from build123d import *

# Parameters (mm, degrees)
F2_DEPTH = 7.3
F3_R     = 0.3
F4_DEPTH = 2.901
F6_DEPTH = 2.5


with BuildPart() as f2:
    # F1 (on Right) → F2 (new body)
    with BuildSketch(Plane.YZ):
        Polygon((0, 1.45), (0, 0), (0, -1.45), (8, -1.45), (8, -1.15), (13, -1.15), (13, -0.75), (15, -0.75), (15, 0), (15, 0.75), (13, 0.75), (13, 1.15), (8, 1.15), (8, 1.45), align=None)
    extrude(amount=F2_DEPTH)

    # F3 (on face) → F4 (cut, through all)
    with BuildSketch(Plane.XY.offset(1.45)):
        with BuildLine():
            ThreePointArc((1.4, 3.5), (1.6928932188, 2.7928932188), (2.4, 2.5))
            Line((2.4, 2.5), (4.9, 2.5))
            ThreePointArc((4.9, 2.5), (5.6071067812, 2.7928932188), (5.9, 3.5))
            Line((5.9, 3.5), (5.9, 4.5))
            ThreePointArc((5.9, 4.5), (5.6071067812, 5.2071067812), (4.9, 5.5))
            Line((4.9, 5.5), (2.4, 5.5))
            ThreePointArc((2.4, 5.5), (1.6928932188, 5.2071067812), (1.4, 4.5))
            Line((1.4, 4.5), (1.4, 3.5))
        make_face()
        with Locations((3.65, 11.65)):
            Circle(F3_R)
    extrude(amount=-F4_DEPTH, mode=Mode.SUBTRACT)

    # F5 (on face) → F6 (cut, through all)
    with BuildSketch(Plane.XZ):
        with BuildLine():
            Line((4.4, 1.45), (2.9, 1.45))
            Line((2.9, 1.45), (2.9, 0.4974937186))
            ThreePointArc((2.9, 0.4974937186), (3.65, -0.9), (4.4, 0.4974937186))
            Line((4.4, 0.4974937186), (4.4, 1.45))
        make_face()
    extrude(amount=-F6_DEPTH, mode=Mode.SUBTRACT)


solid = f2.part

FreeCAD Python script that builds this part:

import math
import FreeCAD as App
import Part
import Sketcher
Q = App.Units.Quantity


def add_polygon(sketch, points):
    """Adds a closed chain of lines whose ends are joined by coincident constraints."""
    first, n = sketch.GeometryCount, len(points)
    for a, b in zip(points, points[1:] + points[:1]):
        sketch.addGeometry(Part.LineSegment(App.Vector(*a, 0), App.Vector(*b, 0)), False)
    for i in range(n):
        sketch.addConstraint(Sketcher.Constraint("Coincident", first + i, 2, first + (i + 1) % n, 1))

doc = App.newDocument("Part")
params = doc.addObject("Spreadsheet::Sheet", "Params")
for row, (alias, value) in enumerate([
    ("sketch1_width", "8 mm"),
    ("sketch1_width2", "5 mm"),
    ("sketch1_width3", "2 mm"),
    ("sketch1_height", "2.9 mm"),
    ("sketch1_height2", "0.3 mm"),
    ("pad1_length", "7.3 mm"),
    ("sketch2_radius", "1 mm"),
    ("sketch2_diameter", "0.6 mm"),
    ("sketch2_height", "1 mm"),
    ("sketch2_width", "2.5 mm"),
    ("sketch3_radius", "0.9 mm"),
    ("sketch3_width", "1.5 mm"),
    ("pocket2_length", "2.5 mm"),
], start=1):
    params.set(f"A{row}", alias)
    params.set(f"B{row}", "=" + value)
    params.setAlias(f"B{row}", alias)

body = doc.addObject("PartDesign::Body", "Body")

# Sketch on YZ plane
sketch1 = body.newObject("Sketcher::SketchObject", "Sketch")
sketch1.AttachmentSupport = (doc.getObject("YZ_Plane"), [""])
sketch1.MapMode = "FlatFace"
add_polygon(sketch1, [(0, 1.45), (0, -1.45), (8, -1.45), (8, -1.15), (13, -1.15), (13, -0.75), (15, -0.75), (15, 0.75), (13, 0.75), (13, 1.15), (8, 1.15), (8, 1.45)])  # lines 0-11
sketch1.addConstraint([
    Sketcher.Constraint("Vertical", 0),
    Sketcher.Constraint("Horizontal", 1),
    Sketcher.Constraint("Vertical", 2),
    Sketcher.Constraint("Horizontal", 3),
    Sketcher.Constraint("Vertical", 4),
    Sketcher.Constraint("Horizontal", 5),
    Sketcher.Constraint("Vertical", 6),
    Sketcher.Constraint("Horizontal", 7),
    Sketcher.Constraint("Vertical", 8),
    Sketcher.Constraint("Horizontal", 9),
    Sketcher.Constraint("Vertical", 10),
    Sketcher.Constraint("Horizontal", 11),
    Sketcher.Constraint("Symmetric", 0, 2, 11, 2, -1, 1),
    Sketcher.Constraint("Symmetric", 4, 2, 7, 2, -1),
    Sketcher.Constraint("Symmetric", 2, 2, 9, 2, -1),
    Sketcher.Constraint("DistanceX", 1, 1, 1, 2, Q("8 mm")),
    Sketcher.Constraint("DistanceX", 3, 1, 3, 2, Q("5 mm")),
    Sketcher.Constraint("DistanceX", 5, 1, 5, 2, Q("2 mm")),
    Sketcher.Constraint("DistanceY", 0, 2, 0, 1, Q("2.9 mm")),
    Sketcher.Constraint("DistanceY", 2, 1, 2, 2, Q("0.3 mm")),
    Sketcher.Constraint("DistanceY", 4, 1, 4, 2, Q("0.4 mm")),
])
sketch1.setExpression("Constraints[27]", "Params.sketch1_width")
sketch1.setExpression("Constraints[28]", "Params.sketch1_width2")
sketch1.setExpression("Constraints[29]", "Params.sketch1_width3")
sketch1.setExpression("Constraints[30]", "Params.sketch1_height")
sketch1.setExpression("Constraints[31]", "Params.sketch1_height2")
pad1 = body.newObject("PartDesign::Pad", "Pad")
pad1.Profile = sketch1
pad1.setExpression("Length", "Params.pad1_length")

# Sketch on XY plane
sketch2 = body.newObject("Sketcher::SketchObject", "Sketch001")
sketch2.AttachmentSupport = (doc.getObject("XY_Plane"), [""])
sketch2.MapMode = "FlatFace"
sketch2.AttachmentOffset = App.Placement(App.Vector(0, 0, 1.45), App.Rotation())
sketch2.addGeometry([
    Part.ArcOfCircle(Part.Circle(App.Vector(2.4, 3.5, 0), App.Vector(0, 0, 1), 1), math.radians(180), math.radians(270)),  # 0
    Part.LineSegment(App.Vector(2.4, 2.5, 0), App.Vector(4.9, 2.5, 0)),  # 1
    Part.ArcOfCircle(Part.Circle(App.Vector(4.9, 3.5, 0), App.Vector(0, 0, 1), 1), math.radians(-90), math.radians(0)),  # 2
    Part.LineSegment(App.Vector(5.9, 3.5, 0), App.Vector(5.9, 4.5, 0)),  # 3
    Part.ArcOfCircle(Part.Circle(App.Vector(4.9, 4.5, 0), App.Vector(0, 0, 1), 1), math.radians(0), math.radians(90)),  # 4
    Part.LineSegment(App.Vector(4.9, 5.5, 0), App.Vector(2.4, 5.5, 0)),  # 5
    Part.ArcOfCircle(Part.Circle(App.Vector(2.4, 4.5, 0), App.Vector(0, 0, 1), 1), math.radians(90), math.radians(180)),  # 6
    Part.LineSegment(App.Vector(1.4, 4.5, 0), App.Vector(1.4, 3.5, 0)),  # 7
    Part.Circle(App.Vector(3.65, 11.65, 0), App.Vector(0, 0, 1), 0.3),  # 8
], False)
sketch2.addConstraint([
    Sketcher.Constraint("Tangent", 0, 2, 1, 1),
    Sketcher.Constraint("Tangent", 1, 2, 2, 1),
    Sketcher.Constraint("Tangent", 2, 2, 3, 1),
    Sketcher.Constraint("Tangent", 3, 2, 4, 1),
    Sketcher.Constraint("Tangent", 4, 2, 5, 1),
    Sketcher.Constraint("Tangent", 5, 2, 6, 1),
    Sketcher.Constraint("Tangent", 6, 2, 7, 1),
    Sketcher.Constraint("Tangent", 7, 2, 0, 1),
    Sketcher.Constraint("Horizontal", 1),
    Sketcher.Constraint("Vertical", 3),
    Sketcher.Constraint("Horizontal", 5),
    Sketcher.Constraint("Vertical", 7),
    Sketcher.Constraint("Equal", 0, 2),
    Sketcher.Constraint("Equal", 2, 4),
    Sketcher.Constraint("Equal", 4, 6),
    Sketcher.Constraint("Radius", 0, Q("1 mm")),
    Sketcher.Constraint("Diameter", 8, Q("0.6 mm")),
    Sketcher.Constraint("DistanceY", 3, 1, 3, 2, Q("1 mm")),
    Sketcher.Constraint("DistanceX", 1, 1, 1, 2, Q("2.5 mm")),
    Sketcher.Constraint("DistanceX", -1, 1, 0, 3, Q("2.4 mm")),
    Sketcher.Constraint("DistanceY", -1, 1, 0, 3, Q("3.5 mm")),
    Sketcher.Constraint("DistanceX", -1, 1, 8, 3, Q("3.65 mm")),
    Sketcher.Constraint("DistanceY", -1, 1, 8, 3, Q("11.65 mm")),
])
sketch2.setExpression("Constraints[15]", "Params.sketch2_radius")
sketch2.setExpression("Constraints[16]", "Params.sketch2_diameter")
sketch2.setExpression("Constraints[17]", "Params.sketch2_height")
sketch2.setExpression("Constraints[18]", "Params.sketch2_width")
pocket1 = body.newObject("PartDesign::Pocket", "Pocket")
pocket1.Profile = sketch2
pocket1.Type = "ThroughAll"

# Sketch on XZ plane
sketch3 = body.newObject("Sketcher::SketchObject", "Sketch002")
sketch3.AttachmentSupport = (doc.getObject("XZ_Plane"), [""])
sketch3.MapMode = "FlatFace"
sketch3.addGeometry([
    Part.LineSegment(App.Vector(4.4, 1.45, 0), App.Vector(2.9, 1.45, 0)),
    Part.LineSegment(App.Vector(2.9, 1.45, 0), App.Vector(2.9, 0.497494, 0)),
    Part.ArcOfCircle(Part.Circle(App.Vector(3.65, 0, 0), App.Vector(0, 0, 1), 0.9), math.radians(146.44269), math.radians(393.55731)),
    Part.LineSegment(App.Vector(4.4, 0.497494, 0), App.Vector(4.4, 1.45, 0)),
], False)
sketch3.addConstraint([
    Sketcher.Constraint("Coincident", 0, 2, 1, 1),
    Sketcher.Constraint("Coincident", 1, 2, 2, 1),
    Sketcher.Constraint("Coincident", 2, 2, 3, 1),
    Sketcher.Constraint("Coincident", 3, 2, 0, 1),
    Sketcher.Constraint("Horizontal", 0),
    Sketcher.Constraint("Vertical", 1),
    Sketcher.Constraint("Vertical", 3),
    Sketcher.Constraint("PointOnObject", 2, 3, -1),
    Sketcher.Constraint("Horizontal", 1, 2, 2, 2),
    Sketcher.Constraint("Radius", 2, Q("0.9 mm")),
    Sketcher.Constraint("DistanceX", 0, 2, 0, 1, Q("1.5 mm")),
    Sketcher.Constraint("DistanceX", -1, 1, 0, 2, Q("2.9 mm")),
    Sketcher.Constraint("DistanceY", -1, 1, 0, 2, Q("1.45 mm")),
])
sketch3.setExpression("Constraints[9]", "Params.sketch3_radius")
sketch3.setExpression("Constraints[10]", "Params.sketch3_width")
pocket2 = body.newObject("PartDesign::Pocket", "Pocket001")
pocket2.Profile = sketch3
pocket2.setExpression("Length", "Params.pocket2_length")

doc.recompute()
